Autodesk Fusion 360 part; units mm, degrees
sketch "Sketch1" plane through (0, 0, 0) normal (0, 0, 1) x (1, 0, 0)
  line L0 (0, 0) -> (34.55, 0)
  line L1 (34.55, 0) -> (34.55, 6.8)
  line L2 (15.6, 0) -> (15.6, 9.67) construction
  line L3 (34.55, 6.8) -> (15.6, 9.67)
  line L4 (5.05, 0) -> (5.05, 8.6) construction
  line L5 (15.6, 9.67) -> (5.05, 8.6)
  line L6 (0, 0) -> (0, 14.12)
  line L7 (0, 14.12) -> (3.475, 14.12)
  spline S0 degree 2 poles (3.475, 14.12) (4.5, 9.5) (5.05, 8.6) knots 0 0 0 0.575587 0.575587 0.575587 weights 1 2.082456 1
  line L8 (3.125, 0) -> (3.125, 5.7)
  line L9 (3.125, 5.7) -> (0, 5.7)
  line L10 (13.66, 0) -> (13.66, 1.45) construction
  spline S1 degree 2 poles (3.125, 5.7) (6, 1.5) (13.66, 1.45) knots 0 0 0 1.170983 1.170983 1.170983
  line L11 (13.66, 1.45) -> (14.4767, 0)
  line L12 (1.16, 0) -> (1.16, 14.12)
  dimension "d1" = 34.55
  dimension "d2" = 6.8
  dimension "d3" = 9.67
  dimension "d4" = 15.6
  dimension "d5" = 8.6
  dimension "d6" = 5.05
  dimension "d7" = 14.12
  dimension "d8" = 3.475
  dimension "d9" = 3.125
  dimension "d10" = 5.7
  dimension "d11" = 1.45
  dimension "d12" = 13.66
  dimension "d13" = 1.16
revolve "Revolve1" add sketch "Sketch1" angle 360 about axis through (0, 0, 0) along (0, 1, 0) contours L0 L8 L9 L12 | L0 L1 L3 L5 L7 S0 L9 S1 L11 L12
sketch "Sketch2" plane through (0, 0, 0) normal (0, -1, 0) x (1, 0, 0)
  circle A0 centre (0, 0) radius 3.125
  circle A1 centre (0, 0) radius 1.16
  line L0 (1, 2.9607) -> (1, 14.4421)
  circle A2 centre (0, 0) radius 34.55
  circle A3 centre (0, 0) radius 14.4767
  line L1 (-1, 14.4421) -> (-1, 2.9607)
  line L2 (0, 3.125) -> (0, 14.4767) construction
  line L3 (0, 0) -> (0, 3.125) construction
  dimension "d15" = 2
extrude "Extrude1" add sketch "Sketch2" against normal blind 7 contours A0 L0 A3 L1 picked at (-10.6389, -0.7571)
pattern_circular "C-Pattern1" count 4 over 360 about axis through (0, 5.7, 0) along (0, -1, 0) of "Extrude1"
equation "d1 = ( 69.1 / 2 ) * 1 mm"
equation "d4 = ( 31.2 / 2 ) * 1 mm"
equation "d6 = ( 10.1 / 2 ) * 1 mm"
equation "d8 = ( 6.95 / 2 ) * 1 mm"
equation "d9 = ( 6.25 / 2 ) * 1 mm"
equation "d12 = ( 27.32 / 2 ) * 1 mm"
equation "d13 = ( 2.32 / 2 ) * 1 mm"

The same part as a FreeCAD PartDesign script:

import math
import FreeCAD as App
import Part
import Sketcher

V = App.Vector
Q = App.Units.Quantity

doc = App.newDocument("Part")
body = doc.addObject("PartDesign::Body", "Body")

sketch1 = body.newObject("Sketcher::SketchObject", "Sketch")
sketch1.AttachmentSupport = (doc.getObject("XY_Plane"), [""])
sketch1.MapMode = "FlatFace"
sketch1.addGeometry(Part.LineSegment(V(1.16, 0, 0), V(3.125, 0, 0)), False)
sketch1.addGeometry(Part.LineSegment(V(3.125, 0, 0), V(3.125, 5.7, 0)), False)
sketch1.addGeometry(Part.BSplineCurve([V(3.125, 5.7, 0), V(6, 1.5, 0), V(13.66, 1.45, 0)], [3, 3], [0, 1.170983], False, 2, [1, 1, 1], False), False)
sketch1.addGeometry(Part.LineSegment(V(13.66, 1.45, 0), V(14.4767, 0, 0)), False)
sketch1.addGeometry(Part.LineSegment(V(14.4767, 0, 0), V(34.55, 0, 0)), False)
sketch1.addGeometry(Part.LineSegment(V(34.55, 0, 0), V(34.55, 6.8, 0)), False)
sketch1.addGeometry(Part.LineSegment(V(34.55, 6.8, 0), V(15.6, 9.67, 0)), False)
sketch1.addGeometry(Part.LineSegment(V(15.6, 9.67, 0), V(5.05, 8.6, 0)), False)
sketch1.addGeometry(Part.BSplineCurve([V(3.475, 14.12, 0), V(4.5, 9.5, 0), V(5.05, 8.6, 0)], [3, 3], [0, 0.575587], False, 2, [1, 2.082456, 1], False), False)
sketch1.addGeometry(Part.LineSegment(V(3.475, 14.12, 0), V(1.16, 14.12, 0)), False)
sketch1.addGeometry(Part.LineSegment(V(1.16, 14.12, 0), V(1.16, 0, 0)), False)
sketch1.addConstraint(Sketcher.Constraint("Block", 2))
sketch1.addConstraint(Sketcher.Constraint("Block", 8))
sketch1.addConstraint(Sketcher.Constraint("Coincident", 0, 2, 1, 1))
sketch1.addConstraint(Sketcher.Constraint("Coincident", 1, 2, 2, 1))
sketch1.addConstraint(Sketcher.Constraint("Coincident", 2, 2, 3, 1))
sketch1.addConstraint(Sketcher.Constraint("Coincident", 3, 2, 4, 1))
sketch1.addConstraint(Sketcher.Constraint("Coincident", 4, 2, 5, 1))
sketch1.addConstraint(Sketcher.Constraint("Coincident", 5, 2, 6, 1))
sketch1.addConstraint(Sketcher.Constraint("Coincident", 6, 2, 7, 1))
sketch1.addConstraint(Sketcher.Constraint("Coincident", 7, 2, 8, 2))
sketch1.addConstraint(Sketcher.Constraint("Coincident", 8, 1, 9, 1))
sketch1.addConstraint(Sketcher.Constraint("Coincident", 9, 2, 10, 1))
sketch1.addConstraint(Sketcher.Constraint("Coincident", 10, 2, 0, 1))
sketch1.addConstraint(Sketcher.Constraint("Horizontal", 0))
sketch1.addConstraint(Sketcher.Constraint("Vertical", 1))
sketch1.addConstraint(Sketcher.Constraint("Horizontal", 4))
sketch1.addConstraint(Sketcher.Constraint("Vertical", 5))
sketch1.addConstraint(Sketcher.Constraint("Horizontal", 9))
sketch1.addConstraint(Sketcher.Constraint("Vertical", 10))
sketch1.addConstraint(Sketcher.Constraint("PointOnObject", 0, 2, -1))
sketch1.addConstraint(Sketcher.Constraint("PointOnObject", 3, 2, -1))
sketch1.addConstraint(Sketcher.Constraint("DistanceY", 5, 1, 5, 2, Q("6.8 mm")))
sketch1.addConstraint(Sketcher.Constraint("DistanceX", -1, 1, 6, 2, Q("15.6 mm")))
sketch1.addConstraint(Sketcher.Constraint("DistanceX", -1, 1, 4, 2, Q("34.55 mm")))
sketch1.addConstraint(Sketcher.Constraint("DistanceY", -1, 1, 6, 2, Q("9.67 mm")))
sketch1.addConstraint(Sketcher.Constraint("DistanceX", -1, 1, 9, 2, Q("1.16 mm")))
sketch1.addConstraint(Sketcher.Constraint("Angle", 3, Q("-60.61 deg")))
revolution = body.newObject("PartDesign::Revolution", "Revolution")
revolution.Profile = sketch1
revolution.ReferenceAxis = (sketch1, ["V_Axis"])
revolution.Angle = 360

sketch2 = body.newObject("Sketcher::SketchObject", "Sketch001")
sketch2.AttachmentSupport = (doc.getObject("XZ_Plane"), [""])
sketch2.MapMode = "FlatFace"
sketch2.addGeometry(Part.ArcOfCircle(Part.Circle(V(0, 0, 0), V(0, 0, 1), 3.1), math.radians(109), math.radians(431)), False)
sketch2.addGeometry(Part.LineSegment(V(-1, 3, 0), V(-1, 14.4, 0)), False)
sketch2.addGeometry(Part.ArcOfCircle(Part.Circle(V(0, 0, 0), V(0, 0, 1), 14.5), math.radians(94), math.radians(446)), False)
sketch2.addGeometry(Part.LineSegment(V(1, 14.4, 0), V(1, 3, 0)), False)
sketch2.addConstraint(Sketcher.Constraint("Coincident", 0, 1, 1, 1))
sketch2.addConstraint(Sketcher.Constraint("Coincident", 1, 2, 2, 1))
sketch2.addConstraint(Sketcher.Constraint("Coincident", 2, 2, 3, 1))
sketch2.addConstraint(Sketcher.Constraint("Coincident", 3, 2, 0, 2))
sketch2.addConstraint(Sketcher.Constraint("Vertical", 1))
sketch2.addConstraint(Sketcher.Constraint("Vertical", 3))
sketch2.addConstraint(Sketcher.Constraint("Coincident", 0, 3, -1, 1))
sketch2.addConstraint(Sketcher.Constraint("Coincident", 2, 3, -1, 1))
sketch2.addConstraint(Sketcher.Constraint("Horizontal", 1, 2, 2, 2))
sketch2.addConstraint(Sketcher.Constraint("DistanceX", 1, 2, 2, 2, Q("2 mm")))
sketch2.addConstraint(Sketcher.Constraint("Radius", 0, Q("3.125 mm")))
sketch2.addConstraint(Sketcher.Constraint("Radius", 2, Q("14.4767 mm")))
pad1 = body.newObject("PartDesign::Pad", "Pad")
pad1.Profile = sketch2
pad1.Length = 7
pad1.Reversed = True
doc.recompute()

polarpattern = body.newObject("PartDesign::PolarPattern", "PolarPattern")
polarpattern.Originals = [pad1]
polarpattern.Axis = (doc.getObject("Y_Axis"), [""])
polarpattern.Angle = 360
polarpattern.Occurrences = 4
body.Tip = polarpattern

doc.recompute()
